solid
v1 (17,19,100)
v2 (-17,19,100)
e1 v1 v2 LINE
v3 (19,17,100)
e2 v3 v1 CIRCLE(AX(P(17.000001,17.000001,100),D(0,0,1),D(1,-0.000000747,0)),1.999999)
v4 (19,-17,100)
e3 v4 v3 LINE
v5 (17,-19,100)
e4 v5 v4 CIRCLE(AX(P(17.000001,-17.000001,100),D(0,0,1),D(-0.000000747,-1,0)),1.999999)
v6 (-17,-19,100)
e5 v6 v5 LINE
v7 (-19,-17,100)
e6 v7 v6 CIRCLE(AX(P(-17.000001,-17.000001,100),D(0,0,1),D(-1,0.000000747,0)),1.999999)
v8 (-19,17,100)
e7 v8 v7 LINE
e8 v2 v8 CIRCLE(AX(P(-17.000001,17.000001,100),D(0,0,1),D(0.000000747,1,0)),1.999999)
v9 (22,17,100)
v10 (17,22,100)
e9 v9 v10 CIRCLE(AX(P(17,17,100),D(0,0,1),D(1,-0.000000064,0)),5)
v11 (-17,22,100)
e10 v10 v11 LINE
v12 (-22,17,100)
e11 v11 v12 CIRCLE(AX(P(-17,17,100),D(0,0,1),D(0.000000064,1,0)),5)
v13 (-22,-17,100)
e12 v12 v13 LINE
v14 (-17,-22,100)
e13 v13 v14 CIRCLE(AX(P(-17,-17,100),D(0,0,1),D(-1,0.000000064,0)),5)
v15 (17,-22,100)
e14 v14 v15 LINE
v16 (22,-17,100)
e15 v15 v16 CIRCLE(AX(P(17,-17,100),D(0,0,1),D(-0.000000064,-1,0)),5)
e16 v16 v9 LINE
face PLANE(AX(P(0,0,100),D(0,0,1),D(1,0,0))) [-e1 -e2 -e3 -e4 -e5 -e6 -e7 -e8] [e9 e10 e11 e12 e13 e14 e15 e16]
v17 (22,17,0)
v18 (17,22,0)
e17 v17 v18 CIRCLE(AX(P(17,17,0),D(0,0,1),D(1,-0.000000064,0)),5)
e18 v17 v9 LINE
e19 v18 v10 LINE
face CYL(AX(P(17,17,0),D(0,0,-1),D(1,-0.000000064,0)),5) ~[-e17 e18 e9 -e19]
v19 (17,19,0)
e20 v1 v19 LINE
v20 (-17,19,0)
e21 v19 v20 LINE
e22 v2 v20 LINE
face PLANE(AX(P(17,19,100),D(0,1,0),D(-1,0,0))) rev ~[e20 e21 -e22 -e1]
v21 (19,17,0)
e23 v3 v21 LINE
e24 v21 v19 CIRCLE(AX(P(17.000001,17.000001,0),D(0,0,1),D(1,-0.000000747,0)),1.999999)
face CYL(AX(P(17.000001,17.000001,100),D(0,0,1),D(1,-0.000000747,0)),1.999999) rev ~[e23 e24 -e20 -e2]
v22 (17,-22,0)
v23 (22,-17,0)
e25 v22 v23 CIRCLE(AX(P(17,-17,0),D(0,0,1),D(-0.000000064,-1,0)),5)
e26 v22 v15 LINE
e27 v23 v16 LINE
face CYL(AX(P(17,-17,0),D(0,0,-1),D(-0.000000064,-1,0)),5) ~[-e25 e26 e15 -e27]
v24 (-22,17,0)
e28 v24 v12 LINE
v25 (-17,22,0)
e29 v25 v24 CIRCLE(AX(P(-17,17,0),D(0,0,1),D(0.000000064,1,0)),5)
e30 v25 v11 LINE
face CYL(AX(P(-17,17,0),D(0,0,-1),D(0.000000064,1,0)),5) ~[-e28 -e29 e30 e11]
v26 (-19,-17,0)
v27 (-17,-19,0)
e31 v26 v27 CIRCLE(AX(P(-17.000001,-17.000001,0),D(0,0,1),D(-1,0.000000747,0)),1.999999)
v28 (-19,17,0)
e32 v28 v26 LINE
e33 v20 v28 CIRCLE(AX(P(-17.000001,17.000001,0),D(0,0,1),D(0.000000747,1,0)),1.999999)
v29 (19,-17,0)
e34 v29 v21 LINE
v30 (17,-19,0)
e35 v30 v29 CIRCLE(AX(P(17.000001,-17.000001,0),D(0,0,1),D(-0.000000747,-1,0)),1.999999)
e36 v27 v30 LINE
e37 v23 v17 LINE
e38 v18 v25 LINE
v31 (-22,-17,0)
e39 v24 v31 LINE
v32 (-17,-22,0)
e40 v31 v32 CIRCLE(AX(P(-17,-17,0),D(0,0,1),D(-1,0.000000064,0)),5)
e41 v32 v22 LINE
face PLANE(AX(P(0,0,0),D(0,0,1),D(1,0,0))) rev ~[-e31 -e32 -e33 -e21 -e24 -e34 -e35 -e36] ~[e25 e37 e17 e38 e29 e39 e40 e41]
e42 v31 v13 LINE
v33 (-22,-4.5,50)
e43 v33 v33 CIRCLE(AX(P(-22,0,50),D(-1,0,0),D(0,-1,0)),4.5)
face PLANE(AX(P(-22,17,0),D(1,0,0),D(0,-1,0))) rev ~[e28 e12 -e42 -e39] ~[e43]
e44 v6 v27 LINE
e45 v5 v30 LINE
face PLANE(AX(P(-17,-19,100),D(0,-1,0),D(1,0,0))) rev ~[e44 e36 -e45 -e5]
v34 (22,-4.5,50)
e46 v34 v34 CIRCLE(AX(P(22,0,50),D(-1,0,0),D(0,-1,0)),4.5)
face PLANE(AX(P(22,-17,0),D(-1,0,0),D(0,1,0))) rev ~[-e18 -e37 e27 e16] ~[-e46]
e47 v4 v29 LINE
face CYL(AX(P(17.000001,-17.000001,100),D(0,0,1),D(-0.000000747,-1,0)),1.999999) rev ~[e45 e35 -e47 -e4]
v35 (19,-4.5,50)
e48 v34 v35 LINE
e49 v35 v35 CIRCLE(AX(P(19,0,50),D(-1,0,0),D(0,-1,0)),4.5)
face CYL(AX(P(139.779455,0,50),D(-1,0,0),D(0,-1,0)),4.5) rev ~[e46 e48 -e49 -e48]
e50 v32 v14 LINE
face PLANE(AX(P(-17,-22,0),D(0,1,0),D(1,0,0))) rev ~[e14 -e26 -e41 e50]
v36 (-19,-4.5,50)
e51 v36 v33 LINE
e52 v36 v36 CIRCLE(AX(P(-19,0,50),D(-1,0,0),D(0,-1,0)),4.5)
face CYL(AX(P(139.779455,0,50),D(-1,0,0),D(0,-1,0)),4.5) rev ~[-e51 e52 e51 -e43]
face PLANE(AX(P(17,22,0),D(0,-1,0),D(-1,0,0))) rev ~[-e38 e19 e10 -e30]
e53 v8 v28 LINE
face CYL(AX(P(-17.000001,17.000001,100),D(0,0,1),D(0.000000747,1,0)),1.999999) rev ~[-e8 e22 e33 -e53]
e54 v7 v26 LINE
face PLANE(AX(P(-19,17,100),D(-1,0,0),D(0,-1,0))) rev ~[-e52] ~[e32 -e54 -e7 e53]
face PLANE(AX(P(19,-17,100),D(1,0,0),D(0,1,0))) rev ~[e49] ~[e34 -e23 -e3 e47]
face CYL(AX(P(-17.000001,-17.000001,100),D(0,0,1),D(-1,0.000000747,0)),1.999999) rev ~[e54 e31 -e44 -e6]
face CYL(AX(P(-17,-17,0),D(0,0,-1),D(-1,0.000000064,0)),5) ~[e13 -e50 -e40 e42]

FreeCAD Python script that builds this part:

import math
import FreeCAD as App
import Part
import Sketcher

V = App.Vector

doc = App.newDocument("Part")
params = doc.addObject("Spreadsheet::Sheet", "Params")
for row, (alias, value) in enumerate([
    ("sketch1_radius", "5 mm"),
    ("sketch1_width", "34 mm"),
    ("pad1_length", "100 mm"),
    ("sketch2_radius", "1.999999 mm"),
    ("sketch2_width", "34 mm"),
    ("sketch3_diameter", "9 mm"),
    ("hole_diameter", "9 mm"),
], start=1):
    params.set(f"A{row}", alias)
    params.set(f"B{row}", "=" + value)
    params.setAlias(f"B{row}", alias)

body = doc.addObject("PartDesign::Body", "Body")

# Sketch on XY plane
sketch1 = doc.addObject("Sketcher::SketchObject", "Sketch")
body.addObject(sketch1)
sketch1.AttachmentSupport = (doc.XY_Plane, [""])
sketch1.MapMode = "FlatFace"
sketch1.addGeometry(Part.ArcOfCircle(Part.Circle(V(17, 17, 0), V(0, 0, 1), 5), math.radians(0), math.radians(90)), False)
sketch1.addGeometry(Part.LineSegment(V(17, 22, 0), V(-17, 22, 0)), False)
sketch1.addGeometry(Part.ArcOfCircle(Part.Circle(V(-17, 17, 0), V(0, 0, 1), 5), math.radians(90), math.radians(180)), False)
sketch1.addGeometry(Part.LineSegment(V(-22, 17, 0), V(-22, -17, 0)), False)
sketch1.addGeometry(Part.ArcOfCircle(Part.Circle(V(-17, -17, 0), V(0, 0, 1), 5), math.radians(180), math.radians(270)), False)
sketch1.addGeometry(Part.LineSegment(V(-17, -22, 0), V(17, -22, 0)), False)
sketch1.addGeometry(Part.ArcOfCircle(Part.Circle(V(17, -17, 0), V(0, 0, 1), 5), math.radians(-90), math.radians(0)), False)
sketch1.addGeometry(Part.LineSegment(V(22, -17, 0), V(22, 17, 0)), False)
sketch1.addConstraint(Sketcher.Constraint("Tangent", 0, 2, 1, 1))
sketch1.addConstraint(Sketcher.Constraint("Tangent", 1, 2, 2, 1))
sketch1.addConstraint(Sketcher.Constraint("Tangent", 2, 2, 3, 1))
sketch1.addConstraint(Sketcher.Constraint("Tangent", 3, 2, 4, 1))
sketch1.addConstraint(Sketcher.Constraint("Tangent", 4, 2, 5, 1))
sketch1.addConstraint(Sketcher.Constraint("Tangent", 5, 2, 6, 1))
sketch1.addConstraint(Sketcher.Constraint("Tangent", 6, 2, 7, 1))
sketch1.addConstraint(Sketcher.Constraint("Tangent", 7, 2, 0, 1))
sketch1.addConstraint(Sketcher.Constraint("Horizontal", 1))
sketch1.addConstraint(Sketcher.Constraint("Vertical", 3))
sketch1.addConstraint(Sketcher.Constraint("Horizontal", 5))
sketch1.addConstraint(Sketcher.Constraint("Vertical", 7))
sketch1.addConstraint(Sketcher.Constraint("Equal", 0, 2))
sketch1.addConstraint(Sketcher.Constraint("Equal", 2, 4))
sketch1.addConstraint(Sketcher.Constraint("Equal", 4, 6))
sketch1.addConstraint(Sketcher.Constraint("Symmetric", 0, 3, 4, 3, -1, 1))
sketch1.addConstraint(Sketcher.Constraint("Equal", 5, 3))
sketch1.addConstraint(Sketcher.Constraint("Radius", 0, 5.0))
sketch1.addConstraint(Sketcher.Constraint("DistanceX", 1, 2, 1, 1, 34.0))
sketch1.setExpression("Constraints[17]", "Params.sketch1_radius")
sketch1.setExpression("Constraints[18]", "Params.sketch1_width")
pad1 = doc.addObject("PartDesign::Pad", "Pad")
body.addObject(pad1)
pad1.Profile = sketch1
pad1.setExpression("Length", "Params.pad1_length")

# Sketch on XY plane
sketch2 = doc.addObject("Sketcher::SketchObject", "Sketch001")
body.addObject(sketch2)
sketch2.AttachmentSupport = (doc.XY_Plane, [""])
sketch2.MapMode = "FlatFace"
sketch2.AttachmentOffset = App.Placement(V(0, 0, 100), App.Rotation())
sketch2.addGeometry(Part.ArcOfCircle(Part.Circle(V(-17, -17, 0), V(0, 0, 1), 2), math.radians(180), math.radians(270)), False)
sketch2.addGeometry(Part.LineSegment(V(-17, -19, 0), V(17, -19, 0)), False)
sketch2.addGeometry(Part.ArcOfCircle(Part.Circle(V(17, -17, 0), V(0, 0, 1), 2), math.radians(-90), math.radians(0)), False)
sketch2.addGeometry(Part.LineSegment(V(19, -17, 0), V(19, 17, 0)), False)
sketch2.addGeometry(Part.ArcOfCircle(Part.Circle(V(17, 17, 0), V(0, 0, 1), 2), math.radians(0), math.radians(90)), False)
sketch2.addGeometry(Part.LineSegment(V(17, 19, 0), V(-17, 19, 0)), False)
sketch2.addGeometry(Part.ArcOfCircle(Part.Circle(V(-17, 17, 0), V(0, 0, 1), 2), math.radians(90), math.radians(180)), False)
sketch2.addGeometry(Part.LineSegment(V(-19, 17, 0), V(-19, -17, 0)), False)
sketch2.addConstraint(Sketcher.Constraint("Tangent", 0, 2, 1, 1))
sketch2.addConstraint(Sketcher.Constraint("Tangent", 1, 2, 2, 1))
sketch2.addConstraint(Sketcher.Constraint("Tangent", 2, 2, 3, 1))
sketch2.addConstraint(Sketcher.Constraint("Tangent", 3, 2, 4, 1))
sketch2.addConstraint(Sketcher.Constraint("Tangent", 4, 2, 5, 1))
sketch2.addConstraint(Sketcher.Constraint("Tangent", 5, 2, 6, 1))
sketch2.addConstraint(Sketcher.Constraint("Tangent", 6, 2, 7, 1))
sketch2.addConstraint(Sketcher.Constraint("Tangent", 7, 2, 0, 1))
sketch2.addConstraint(Sketcher.Constraint("Horizontal", 1))
sketch2.addConstraint(Sketcher.Constraint("Vertical", 3))
sketch2.addConstraint(Sketcher.Constraint("Horizontal", 5))
sketch2.addConstraint(Sketcher.Constraint("Vertical", 7))
sketch2.addConstraint(Sketcher.Constraint("Equal", 0, 2))
sketch2.addConstraint(Sketcher.Constraint("Equal", 2, 4))
sketch2.addConstraint(Sketcher.Constraint("Equal", 4, 6))
sketch2.addConstraint(Sketcher.Constraint("Symmetric", 0, 3, 4, 3, -1, 1))
sketch2.addConstraint(Sketcher.Constraint("Equal", 5, 3))
sketch2.addConstraint(Sketcher.Constraint("Radius", 0, 1.999999))
sketch2.addConstraint(Sketcher.Constraint("DistanceX", 1, 1, 1, 2, 34.0))
sketch2.setExpression("Constraints[17]", "Params.sketch2_radius")
sketch2.setExpression("Constraints[18]", "Params.sketch2_width")
pocket1 = doc.addObject("PartDesign::Pocket", "Pocket")
body.addObject(pocket1)
pocket1.Profile = sketch2
pocket1.Type = "ThroughAll"

# Sketch on YZ plane
sketch3 = doc.addObject("Sketcher::SketchObject", "Sketch002")
body.addObject(sketch3)
sketch3.AttachmentSupport = (doc.YZ_Plane, [""])
sketch3.MapMode = "FlatFace"
sketch3.AttachmentOffset = App.Placement(V(0, 0, 22), App.Rotation())
sketch3.addGeometry(Part.Circle(V(0, 50, 0), V(0, 0, 1), 4.5), False)
sketch3.addConstraint(Sketcher.Constraint("PointOnObject", 0, 3, -2))
sketch3.addConstraint(Sketcher.Constraint("Diameter", 0, 9.0))
sketch3.addConstraint(Sketcher.Constraint("DistanceY", -1, 1, 0, 3, 50.0))
sketch3.setExpression("Constraints[1]", "Params.sketch3_diameter")
doc.recompute()
hole = doc.addObject("PartDesign::Hole", "Hole")
body.addObject(hole)
hole.Profile = sketch3
hole.ThreadType = "None"
hole.setExpression("Diameter", "Params.hole_diameter")
hole.DepthType = "ThroughAll"

doc.recompute()
